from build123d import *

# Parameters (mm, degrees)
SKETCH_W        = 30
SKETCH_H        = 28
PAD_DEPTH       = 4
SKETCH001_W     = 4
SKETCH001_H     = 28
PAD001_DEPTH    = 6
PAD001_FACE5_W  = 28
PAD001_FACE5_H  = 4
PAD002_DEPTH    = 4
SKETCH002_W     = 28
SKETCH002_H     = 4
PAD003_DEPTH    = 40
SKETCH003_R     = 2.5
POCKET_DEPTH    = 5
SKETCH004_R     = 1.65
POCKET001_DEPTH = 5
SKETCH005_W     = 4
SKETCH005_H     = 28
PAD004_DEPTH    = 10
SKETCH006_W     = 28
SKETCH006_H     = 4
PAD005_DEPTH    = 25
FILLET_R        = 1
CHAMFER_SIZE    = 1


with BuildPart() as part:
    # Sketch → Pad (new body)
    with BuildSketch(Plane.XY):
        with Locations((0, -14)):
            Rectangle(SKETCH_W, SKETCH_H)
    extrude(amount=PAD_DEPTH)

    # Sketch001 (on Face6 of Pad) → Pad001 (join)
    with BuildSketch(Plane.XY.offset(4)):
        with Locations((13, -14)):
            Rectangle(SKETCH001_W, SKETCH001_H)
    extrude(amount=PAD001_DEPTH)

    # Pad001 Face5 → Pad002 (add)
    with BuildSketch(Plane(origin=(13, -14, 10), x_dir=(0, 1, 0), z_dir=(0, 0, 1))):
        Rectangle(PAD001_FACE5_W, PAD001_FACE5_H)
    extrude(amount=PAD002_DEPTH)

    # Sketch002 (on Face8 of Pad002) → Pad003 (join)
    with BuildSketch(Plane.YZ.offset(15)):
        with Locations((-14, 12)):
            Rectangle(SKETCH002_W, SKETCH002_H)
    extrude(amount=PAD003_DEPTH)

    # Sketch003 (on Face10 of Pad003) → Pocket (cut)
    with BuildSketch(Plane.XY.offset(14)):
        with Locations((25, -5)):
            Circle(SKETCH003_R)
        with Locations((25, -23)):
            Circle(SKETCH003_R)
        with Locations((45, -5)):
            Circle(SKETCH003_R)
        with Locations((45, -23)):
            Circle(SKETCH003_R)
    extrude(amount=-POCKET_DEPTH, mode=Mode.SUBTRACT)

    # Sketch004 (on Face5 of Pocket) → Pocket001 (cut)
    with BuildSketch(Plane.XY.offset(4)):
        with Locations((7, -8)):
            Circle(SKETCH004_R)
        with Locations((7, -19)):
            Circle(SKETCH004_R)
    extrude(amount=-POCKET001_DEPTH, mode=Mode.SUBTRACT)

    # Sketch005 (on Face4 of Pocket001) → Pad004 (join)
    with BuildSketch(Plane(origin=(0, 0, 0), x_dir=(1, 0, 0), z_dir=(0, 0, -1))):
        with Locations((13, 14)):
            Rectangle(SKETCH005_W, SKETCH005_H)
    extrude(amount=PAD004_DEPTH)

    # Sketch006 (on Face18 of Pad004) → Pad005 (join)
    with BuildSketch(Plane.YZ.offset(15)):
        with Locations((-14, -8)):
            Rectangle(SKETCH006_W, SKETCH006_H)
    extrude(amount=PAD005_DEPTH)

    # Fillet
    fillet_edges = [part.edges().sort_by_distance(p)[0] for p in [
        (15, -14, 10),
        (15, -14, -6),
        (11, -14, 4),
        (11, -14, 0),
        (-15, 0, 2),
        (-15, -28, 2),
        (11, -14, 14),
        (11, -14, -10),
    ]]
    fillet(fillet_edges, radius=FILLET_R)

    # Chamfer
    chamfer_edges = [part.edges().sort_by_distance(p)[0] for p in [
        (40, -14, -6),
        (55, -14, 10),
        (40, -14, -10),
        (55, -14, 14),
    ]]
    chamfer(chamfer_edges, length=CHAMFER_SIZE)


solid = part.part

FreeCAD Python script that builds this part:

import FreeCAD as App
import Part
import Sketcher

V = App.Vector


def edges_at(feature, points):
    """Names of the edges that pass closest to the given points."""
    edges = feature.Shape.Edges
    near = lambda p: min(range(len(edges)), key=lambda i: edges[i].distToShape(Part.Vertex(*p))[0])
    return sorted({f"Edge{near(p) + 1}" for p in points})


def add_polygon(sketch, points):
    """Adds a closed chain of lines whose ends are joined by coincident constraints."""
    first, n = sketch.GeometryCount, len(points)
    for a, b in zip(points, points[1:] + points[:1]):
        sketch.addGeometry(Part.LineSegment(App.Vector(*a, 0), App.Vector(*b, 0)), False)
    for i in range(n):
        sketch.addConstraint(Sketcher.Constraint("Coincident", first + i, 2, first + (i + 1) % n, 1))

doc = App.newDocument("Part")
body = doc.addObject("PartDesign::Body", "Body")

# Sketch on XY plane
sketch1 = body.newObject("Sketcher::SketchObject", "Sketch")
sketch1.AttachmentSupport = (doc.getObject("XY_Plane"), [""])
sketch1.MapMode = "FlatFace"
add_polygon(sketch1, [(-15, 0), (-15, -28), (15, -28), (15, 0)])  # lines 0-3
sketch1.addConstraint([
    Sketcher.Constraint("Vertical", 0),
    Sketcher.Constraint("Horizontal", 1),
    Sketcher.Constraint("Vertical", 2),
    Sketcher.Constraint("Horizontal", 3),
    Sketcher.Constraint("Symmetric", 2, 2, 3, 2, -1, 1),
    Sketcher.Constraint("DistanceX", 1, 1, 1, 2, 30.0),
    Sketcher.Constraint("DistanceY", 0, 2, 0, 1, 28.0),
])
pad1 = body.newObject("PartDesign::Pad", "Pad")
pad1.Profile = sketch1
pad1.Length = 4

# Sketch on XY plane
sketch2 = body.newObject("Sketcher::SketchObject", "Sketch001")
sketch2.AttachmentSupport = (doc.getObject("XY_Plane"), [""])
sketch2.MapMode = "FlatFace"
sketch2.AttachmentOffset = App.Placement(V(0, 0, 4), App.Rotation())
add_polygon(sketch2, [(11, 0), (11, -28), (15, -28), (15, 0)])  # lines 0-3
sketch2.addConstraint([
    Sketcher.Constraint("Vertical", 0),
    Sketcher.Constraint("Horizontal", 1),
    Sketcher.Constraint("Vertical", 2),
    Sketcher.Constraint("Horizontal", 3),
    Sketcher.Constraint("PointOnObject", 2, 2, -1),
    Sketcher.Constraint("DistanceX", 1, 1, 1, 2, 4.0),
    Sketcher.Constraint("DistanceY", 0, 2, 0, 1, 28.0),
    Sketcher.Constraint("DistanceX", -1, 1, 0, 2, 11.0),
])
pad2 = body.newObject("PartDesign::Pad", "Pad001")
pad2.Profile = sketch2
pad2.Length = 6

# Sketch on XY plane
sketch3 = body.newObject("Sketcher::SketchObject", "Sketch002")
sketch3.AttachmentSupport = (doc.getObject("XY_Plane"), [""])
sketch3.MapMode = "FlatFace"
sketch3.AttachmentOffset = App.Placement(V(0, 0, 10), App.Rotation())
add_polygon(sketch3, [(11, -28), (15, -28), (15, 0), (11, 0)])  # lines 0-3
sketch3.addConstraint([
    Sketcher.Constraint("Horizontal", 0),
    Sketcher.Constraint("Vertical", 1),
    Sketcher.Constraint("Horizontal", 2),
    Sketcher.Constraint("Vertical", 3),
    Sketcher.Constraint("PointOnObject", 1, 2, -1),
    Sketcher.Constraint("DistanceX", 0, 1, 0, 2, 4.0),
    Sketcher.Constraint("DistanceY", 1, 1, 1, 2, 28.0),
    Sketcher.Constraint("DistanceX", -1, 1, 0, 2, 15.0),
])
pad3 = body.newObject("PartDesign::Pad", "Pad002")
pad3.Profile = sketch3
pad3.Length = 4

# Sketch on YZ plane
sketch4 = body.newObject("Sketcher::SketchObject", "Sketch003")
sketch4.AttachmentSupport = (doc.getObject("YZ_Plane"), [""])
sketch4.MapMode = "FlatFace"
sketch4.AttachmentOffset = App.Placement(V(0, 0, 15), App.Rotation())
add_polygon(sketch4, [(-28, 14), (-28, 10), (0, 10), (0, 14)])  # lines 0-3
sketch4.addConstraint([
    Sketcher.Constraint("Vertical", 0),
    Sketcher.Constraint("Horizontal", 1),
    Sketcher.Constraint("Vertical", 2),
    Sketcher.Constraint("Horizontal", 3),
    Sketcher.Constraint("PointOnObject", 1, 2, -2),
    Sketcher.Constraint("DistanceX", 1, 1, 1, 2, 28.0),
    Sketcher.Constraint("DistanceY", 0, 2, 0, 1, 4.0),
    Sketcher.Constraint("DistanceY", -1, 1, 0, 2, 10.0),
])
pad4 = body.newObject("PartDesign::Pad", "Pad003")
pad4.Profile = sketch4
pad4.Length = 40

# Sketch on XY plane
sketch5 = body.newObject("Sketcher::SketchObject", "Sketch004")
sketch5.AttachmentSupport = (doc.getObject("XY_Plane"), [""])
sketch5.MapMode = "FlatFace"
sketch5.AttachmentOffset = App.Placement(V(0, 0, 14), App.Rotation())
sketch5.addGeometry([
    Part.Circle(V(25, -5, 0), V(0, 0, 1), 2.5),
    Part.Circle(V(25, -23, 0), V(0, 0, 1), 2.5),
    Part.Circle(V(45, -5, 0), V(0, 0, 1), 2.5),
    Part.Circle(V(45, -23, 0), V(0, 0, 1), 2.5),
], False)
sketch5.addConstraint([
    Sketcher.Constraint("Equal", 0, 1),
    Sketcher.Constraint("Equal", 1, 2),
    Sketcher.Constraint("Equal", 2, 3),
    Sketcher.Constraint("Horizontal", 0, 3, 2, 3),
    Sketcher.Constraint("Horizontal", 1, 3, 3, 3),
    Sketcher.Constraint("Vertical", 0, 3, 1, 3),
    Sketcher.Constraint("Vertical", 2, 3, 3, 3),
    Sketcher.Constraint("Diameter", 0, 5.0),
    Sketcher.Constraint("DistanceX", -1, 1, 0, 3, 25.0),
    Sketcher.Constraint("DistanceY", 0, 3, -1, 1, 5.0),
    Sketcher.Constraint("DistanceY", 1, 3, -1, 1, 23.0),
    Sketcher.Constraint("DistanceX", -1, 1, 2, 3, 45.0),
])
pocket1 = body.newObject("PartDesign::Pocket", "Pocket")
pocket1.Profile = sketch5
pocket1.Length = 5

# Sketch on XY plane
sketch6 = body.newObject("Sketcher::SketchObject", "Sketch005")
sketch6.AttachmentSupport = (doc.getObject("XY_Plane"), [""])
sketch6.MapMode = "FlatFace"
sketch6.AttachmentOffset = App.Placement(V(0, 0, 4), App.Rotation())
sketch6.addGeometry([
    Part.Circle(V(7, -8, 0), V(0, 0, 1), 1.6),
    Part.Circle(V(7, -19, 0), V(0, 0, 1), 1.6),
], False)
sketch6.addConstraint([
    Sketcher.Constraint("Equal", 0, 1),
    Sketcher.Constraint("Vertical", 0, 3, 1, 3),
    Sketcher.Constraint("Diameter", 0, 3.3),
    Sketcher.Constraint("DistanceX", -1, 1, 0, 3, 7.0),
    Sketcher.Constraint("DistanceY", 0, 3, -1, 1, 8.0),
    Sketcher.Constraint("DistanceY", 1, 3, -1, 1, 19.0),
])
pocket2 = body.newObject("PartDesign::Pocket", "Pocket001")
pocket2.Profile = sketch6
pocket2.Length = 5

# Sketch on XY plane
sketch7 = body.newObject("Sketcher::SketchObject", "Sketch006")
sketch7.AttachmentSupport = (doc.getObject("XY_Plane"), [""])
sketch7.MapMode = "FlatFace"
add_polygon(sketch7, [(11, -28), (11, 0), (15, 0), (15, -28)])  # lines 0-3
sketch7.addConstraint([
    Sketcher.Constraint("Vertical", 0),
    Sketcher.Constraint("Horizontal", 1),
    Sketcher.Constraint("Vertical", 2),
    Sketcher.Constraint("Horizontal", 3),
    Sketcher.Constraint("PointOnObject", 0, 2, -1),
    Sketcher.Constraint("DistanceX", 1, 1, 1, 2, 4.0),
    Sketcher.Constraint("DistanceY", 0, 1, 0, 2, 28.0),
    Sketcher.Constraint("DistanceX", -1, 1, 0, 2, 11.0),
])
pad5 = body.newObject("PartDesign::Pad", "Pad004")
pad5.Profile = sketch7
pad5.Length = 10
pad5.Reversed = True

# Sketch on YZ plane
sketch8 = body.newObject("Sketcher::SketchObject", "Sketch007")
sketch8.AttachmentSupport = (doc.getObject("YZ_Plane"), [""])
sketch8.MapMode = "FlatFace"
sketch8.AttachmentOffset = App.Placement(V(0, 0, 15), App.Rotation())
add_polygon(sketch8, [(-28, -6), (-28, -10), (0, -10), (0, -6)])  # lines 0-3
sketch8.addConstraint([
    Sketcher.Constraint("Vertical", 0),
    Sketcher.Constraint("Horizontal", 1),
    Sketcher.Constraint("Vertical", 2),
    Sketcher.Constraint("Horizontal", 3),
    Sketcher.Constraint("PointOnObject", 1, 2, -2),
    Sketcher.Constraint("DistanceX", 1, 1, 1, 2, 28.0),
    Sketcher.Constraint("DistanceY", 0, 2, 0, 1, 4.0),
    Sketcher.Constraint("DistanceY", 0, 2, -1, 1, 10.0),
])
pad6 = body.newObject("PartDesign::Pad", "Pad005")
pad6.Profile = sketch8
pad6.Length = 25
doc.recompute()

fillet = body.newObject("PartDesign::Fillet", "Fillet")
fillet.Base = (pad6, edges_at(pad6, [
    (15, -14, 10),
    (15, -14, -6),
    (11, -14, 4),
    (11, -14, 0),
    (-15, 0, 2),
    (-15, -28, 2),
    (11, -14, 14),
    (11, -14, -10),
]))
fillet.Radius = 1
doc.recompute()

chamfer = body.newObject("PartDesign::Chamfer", "Chamfer")
chamfer.Base = (fillet, edges_at(fillet, [
    (40, -14, -6),
    (55, -14, 10),
    (40, -14, -10),
    (55, -14, 14),
]))
chamfer.Size = 1

doc.recompute()
